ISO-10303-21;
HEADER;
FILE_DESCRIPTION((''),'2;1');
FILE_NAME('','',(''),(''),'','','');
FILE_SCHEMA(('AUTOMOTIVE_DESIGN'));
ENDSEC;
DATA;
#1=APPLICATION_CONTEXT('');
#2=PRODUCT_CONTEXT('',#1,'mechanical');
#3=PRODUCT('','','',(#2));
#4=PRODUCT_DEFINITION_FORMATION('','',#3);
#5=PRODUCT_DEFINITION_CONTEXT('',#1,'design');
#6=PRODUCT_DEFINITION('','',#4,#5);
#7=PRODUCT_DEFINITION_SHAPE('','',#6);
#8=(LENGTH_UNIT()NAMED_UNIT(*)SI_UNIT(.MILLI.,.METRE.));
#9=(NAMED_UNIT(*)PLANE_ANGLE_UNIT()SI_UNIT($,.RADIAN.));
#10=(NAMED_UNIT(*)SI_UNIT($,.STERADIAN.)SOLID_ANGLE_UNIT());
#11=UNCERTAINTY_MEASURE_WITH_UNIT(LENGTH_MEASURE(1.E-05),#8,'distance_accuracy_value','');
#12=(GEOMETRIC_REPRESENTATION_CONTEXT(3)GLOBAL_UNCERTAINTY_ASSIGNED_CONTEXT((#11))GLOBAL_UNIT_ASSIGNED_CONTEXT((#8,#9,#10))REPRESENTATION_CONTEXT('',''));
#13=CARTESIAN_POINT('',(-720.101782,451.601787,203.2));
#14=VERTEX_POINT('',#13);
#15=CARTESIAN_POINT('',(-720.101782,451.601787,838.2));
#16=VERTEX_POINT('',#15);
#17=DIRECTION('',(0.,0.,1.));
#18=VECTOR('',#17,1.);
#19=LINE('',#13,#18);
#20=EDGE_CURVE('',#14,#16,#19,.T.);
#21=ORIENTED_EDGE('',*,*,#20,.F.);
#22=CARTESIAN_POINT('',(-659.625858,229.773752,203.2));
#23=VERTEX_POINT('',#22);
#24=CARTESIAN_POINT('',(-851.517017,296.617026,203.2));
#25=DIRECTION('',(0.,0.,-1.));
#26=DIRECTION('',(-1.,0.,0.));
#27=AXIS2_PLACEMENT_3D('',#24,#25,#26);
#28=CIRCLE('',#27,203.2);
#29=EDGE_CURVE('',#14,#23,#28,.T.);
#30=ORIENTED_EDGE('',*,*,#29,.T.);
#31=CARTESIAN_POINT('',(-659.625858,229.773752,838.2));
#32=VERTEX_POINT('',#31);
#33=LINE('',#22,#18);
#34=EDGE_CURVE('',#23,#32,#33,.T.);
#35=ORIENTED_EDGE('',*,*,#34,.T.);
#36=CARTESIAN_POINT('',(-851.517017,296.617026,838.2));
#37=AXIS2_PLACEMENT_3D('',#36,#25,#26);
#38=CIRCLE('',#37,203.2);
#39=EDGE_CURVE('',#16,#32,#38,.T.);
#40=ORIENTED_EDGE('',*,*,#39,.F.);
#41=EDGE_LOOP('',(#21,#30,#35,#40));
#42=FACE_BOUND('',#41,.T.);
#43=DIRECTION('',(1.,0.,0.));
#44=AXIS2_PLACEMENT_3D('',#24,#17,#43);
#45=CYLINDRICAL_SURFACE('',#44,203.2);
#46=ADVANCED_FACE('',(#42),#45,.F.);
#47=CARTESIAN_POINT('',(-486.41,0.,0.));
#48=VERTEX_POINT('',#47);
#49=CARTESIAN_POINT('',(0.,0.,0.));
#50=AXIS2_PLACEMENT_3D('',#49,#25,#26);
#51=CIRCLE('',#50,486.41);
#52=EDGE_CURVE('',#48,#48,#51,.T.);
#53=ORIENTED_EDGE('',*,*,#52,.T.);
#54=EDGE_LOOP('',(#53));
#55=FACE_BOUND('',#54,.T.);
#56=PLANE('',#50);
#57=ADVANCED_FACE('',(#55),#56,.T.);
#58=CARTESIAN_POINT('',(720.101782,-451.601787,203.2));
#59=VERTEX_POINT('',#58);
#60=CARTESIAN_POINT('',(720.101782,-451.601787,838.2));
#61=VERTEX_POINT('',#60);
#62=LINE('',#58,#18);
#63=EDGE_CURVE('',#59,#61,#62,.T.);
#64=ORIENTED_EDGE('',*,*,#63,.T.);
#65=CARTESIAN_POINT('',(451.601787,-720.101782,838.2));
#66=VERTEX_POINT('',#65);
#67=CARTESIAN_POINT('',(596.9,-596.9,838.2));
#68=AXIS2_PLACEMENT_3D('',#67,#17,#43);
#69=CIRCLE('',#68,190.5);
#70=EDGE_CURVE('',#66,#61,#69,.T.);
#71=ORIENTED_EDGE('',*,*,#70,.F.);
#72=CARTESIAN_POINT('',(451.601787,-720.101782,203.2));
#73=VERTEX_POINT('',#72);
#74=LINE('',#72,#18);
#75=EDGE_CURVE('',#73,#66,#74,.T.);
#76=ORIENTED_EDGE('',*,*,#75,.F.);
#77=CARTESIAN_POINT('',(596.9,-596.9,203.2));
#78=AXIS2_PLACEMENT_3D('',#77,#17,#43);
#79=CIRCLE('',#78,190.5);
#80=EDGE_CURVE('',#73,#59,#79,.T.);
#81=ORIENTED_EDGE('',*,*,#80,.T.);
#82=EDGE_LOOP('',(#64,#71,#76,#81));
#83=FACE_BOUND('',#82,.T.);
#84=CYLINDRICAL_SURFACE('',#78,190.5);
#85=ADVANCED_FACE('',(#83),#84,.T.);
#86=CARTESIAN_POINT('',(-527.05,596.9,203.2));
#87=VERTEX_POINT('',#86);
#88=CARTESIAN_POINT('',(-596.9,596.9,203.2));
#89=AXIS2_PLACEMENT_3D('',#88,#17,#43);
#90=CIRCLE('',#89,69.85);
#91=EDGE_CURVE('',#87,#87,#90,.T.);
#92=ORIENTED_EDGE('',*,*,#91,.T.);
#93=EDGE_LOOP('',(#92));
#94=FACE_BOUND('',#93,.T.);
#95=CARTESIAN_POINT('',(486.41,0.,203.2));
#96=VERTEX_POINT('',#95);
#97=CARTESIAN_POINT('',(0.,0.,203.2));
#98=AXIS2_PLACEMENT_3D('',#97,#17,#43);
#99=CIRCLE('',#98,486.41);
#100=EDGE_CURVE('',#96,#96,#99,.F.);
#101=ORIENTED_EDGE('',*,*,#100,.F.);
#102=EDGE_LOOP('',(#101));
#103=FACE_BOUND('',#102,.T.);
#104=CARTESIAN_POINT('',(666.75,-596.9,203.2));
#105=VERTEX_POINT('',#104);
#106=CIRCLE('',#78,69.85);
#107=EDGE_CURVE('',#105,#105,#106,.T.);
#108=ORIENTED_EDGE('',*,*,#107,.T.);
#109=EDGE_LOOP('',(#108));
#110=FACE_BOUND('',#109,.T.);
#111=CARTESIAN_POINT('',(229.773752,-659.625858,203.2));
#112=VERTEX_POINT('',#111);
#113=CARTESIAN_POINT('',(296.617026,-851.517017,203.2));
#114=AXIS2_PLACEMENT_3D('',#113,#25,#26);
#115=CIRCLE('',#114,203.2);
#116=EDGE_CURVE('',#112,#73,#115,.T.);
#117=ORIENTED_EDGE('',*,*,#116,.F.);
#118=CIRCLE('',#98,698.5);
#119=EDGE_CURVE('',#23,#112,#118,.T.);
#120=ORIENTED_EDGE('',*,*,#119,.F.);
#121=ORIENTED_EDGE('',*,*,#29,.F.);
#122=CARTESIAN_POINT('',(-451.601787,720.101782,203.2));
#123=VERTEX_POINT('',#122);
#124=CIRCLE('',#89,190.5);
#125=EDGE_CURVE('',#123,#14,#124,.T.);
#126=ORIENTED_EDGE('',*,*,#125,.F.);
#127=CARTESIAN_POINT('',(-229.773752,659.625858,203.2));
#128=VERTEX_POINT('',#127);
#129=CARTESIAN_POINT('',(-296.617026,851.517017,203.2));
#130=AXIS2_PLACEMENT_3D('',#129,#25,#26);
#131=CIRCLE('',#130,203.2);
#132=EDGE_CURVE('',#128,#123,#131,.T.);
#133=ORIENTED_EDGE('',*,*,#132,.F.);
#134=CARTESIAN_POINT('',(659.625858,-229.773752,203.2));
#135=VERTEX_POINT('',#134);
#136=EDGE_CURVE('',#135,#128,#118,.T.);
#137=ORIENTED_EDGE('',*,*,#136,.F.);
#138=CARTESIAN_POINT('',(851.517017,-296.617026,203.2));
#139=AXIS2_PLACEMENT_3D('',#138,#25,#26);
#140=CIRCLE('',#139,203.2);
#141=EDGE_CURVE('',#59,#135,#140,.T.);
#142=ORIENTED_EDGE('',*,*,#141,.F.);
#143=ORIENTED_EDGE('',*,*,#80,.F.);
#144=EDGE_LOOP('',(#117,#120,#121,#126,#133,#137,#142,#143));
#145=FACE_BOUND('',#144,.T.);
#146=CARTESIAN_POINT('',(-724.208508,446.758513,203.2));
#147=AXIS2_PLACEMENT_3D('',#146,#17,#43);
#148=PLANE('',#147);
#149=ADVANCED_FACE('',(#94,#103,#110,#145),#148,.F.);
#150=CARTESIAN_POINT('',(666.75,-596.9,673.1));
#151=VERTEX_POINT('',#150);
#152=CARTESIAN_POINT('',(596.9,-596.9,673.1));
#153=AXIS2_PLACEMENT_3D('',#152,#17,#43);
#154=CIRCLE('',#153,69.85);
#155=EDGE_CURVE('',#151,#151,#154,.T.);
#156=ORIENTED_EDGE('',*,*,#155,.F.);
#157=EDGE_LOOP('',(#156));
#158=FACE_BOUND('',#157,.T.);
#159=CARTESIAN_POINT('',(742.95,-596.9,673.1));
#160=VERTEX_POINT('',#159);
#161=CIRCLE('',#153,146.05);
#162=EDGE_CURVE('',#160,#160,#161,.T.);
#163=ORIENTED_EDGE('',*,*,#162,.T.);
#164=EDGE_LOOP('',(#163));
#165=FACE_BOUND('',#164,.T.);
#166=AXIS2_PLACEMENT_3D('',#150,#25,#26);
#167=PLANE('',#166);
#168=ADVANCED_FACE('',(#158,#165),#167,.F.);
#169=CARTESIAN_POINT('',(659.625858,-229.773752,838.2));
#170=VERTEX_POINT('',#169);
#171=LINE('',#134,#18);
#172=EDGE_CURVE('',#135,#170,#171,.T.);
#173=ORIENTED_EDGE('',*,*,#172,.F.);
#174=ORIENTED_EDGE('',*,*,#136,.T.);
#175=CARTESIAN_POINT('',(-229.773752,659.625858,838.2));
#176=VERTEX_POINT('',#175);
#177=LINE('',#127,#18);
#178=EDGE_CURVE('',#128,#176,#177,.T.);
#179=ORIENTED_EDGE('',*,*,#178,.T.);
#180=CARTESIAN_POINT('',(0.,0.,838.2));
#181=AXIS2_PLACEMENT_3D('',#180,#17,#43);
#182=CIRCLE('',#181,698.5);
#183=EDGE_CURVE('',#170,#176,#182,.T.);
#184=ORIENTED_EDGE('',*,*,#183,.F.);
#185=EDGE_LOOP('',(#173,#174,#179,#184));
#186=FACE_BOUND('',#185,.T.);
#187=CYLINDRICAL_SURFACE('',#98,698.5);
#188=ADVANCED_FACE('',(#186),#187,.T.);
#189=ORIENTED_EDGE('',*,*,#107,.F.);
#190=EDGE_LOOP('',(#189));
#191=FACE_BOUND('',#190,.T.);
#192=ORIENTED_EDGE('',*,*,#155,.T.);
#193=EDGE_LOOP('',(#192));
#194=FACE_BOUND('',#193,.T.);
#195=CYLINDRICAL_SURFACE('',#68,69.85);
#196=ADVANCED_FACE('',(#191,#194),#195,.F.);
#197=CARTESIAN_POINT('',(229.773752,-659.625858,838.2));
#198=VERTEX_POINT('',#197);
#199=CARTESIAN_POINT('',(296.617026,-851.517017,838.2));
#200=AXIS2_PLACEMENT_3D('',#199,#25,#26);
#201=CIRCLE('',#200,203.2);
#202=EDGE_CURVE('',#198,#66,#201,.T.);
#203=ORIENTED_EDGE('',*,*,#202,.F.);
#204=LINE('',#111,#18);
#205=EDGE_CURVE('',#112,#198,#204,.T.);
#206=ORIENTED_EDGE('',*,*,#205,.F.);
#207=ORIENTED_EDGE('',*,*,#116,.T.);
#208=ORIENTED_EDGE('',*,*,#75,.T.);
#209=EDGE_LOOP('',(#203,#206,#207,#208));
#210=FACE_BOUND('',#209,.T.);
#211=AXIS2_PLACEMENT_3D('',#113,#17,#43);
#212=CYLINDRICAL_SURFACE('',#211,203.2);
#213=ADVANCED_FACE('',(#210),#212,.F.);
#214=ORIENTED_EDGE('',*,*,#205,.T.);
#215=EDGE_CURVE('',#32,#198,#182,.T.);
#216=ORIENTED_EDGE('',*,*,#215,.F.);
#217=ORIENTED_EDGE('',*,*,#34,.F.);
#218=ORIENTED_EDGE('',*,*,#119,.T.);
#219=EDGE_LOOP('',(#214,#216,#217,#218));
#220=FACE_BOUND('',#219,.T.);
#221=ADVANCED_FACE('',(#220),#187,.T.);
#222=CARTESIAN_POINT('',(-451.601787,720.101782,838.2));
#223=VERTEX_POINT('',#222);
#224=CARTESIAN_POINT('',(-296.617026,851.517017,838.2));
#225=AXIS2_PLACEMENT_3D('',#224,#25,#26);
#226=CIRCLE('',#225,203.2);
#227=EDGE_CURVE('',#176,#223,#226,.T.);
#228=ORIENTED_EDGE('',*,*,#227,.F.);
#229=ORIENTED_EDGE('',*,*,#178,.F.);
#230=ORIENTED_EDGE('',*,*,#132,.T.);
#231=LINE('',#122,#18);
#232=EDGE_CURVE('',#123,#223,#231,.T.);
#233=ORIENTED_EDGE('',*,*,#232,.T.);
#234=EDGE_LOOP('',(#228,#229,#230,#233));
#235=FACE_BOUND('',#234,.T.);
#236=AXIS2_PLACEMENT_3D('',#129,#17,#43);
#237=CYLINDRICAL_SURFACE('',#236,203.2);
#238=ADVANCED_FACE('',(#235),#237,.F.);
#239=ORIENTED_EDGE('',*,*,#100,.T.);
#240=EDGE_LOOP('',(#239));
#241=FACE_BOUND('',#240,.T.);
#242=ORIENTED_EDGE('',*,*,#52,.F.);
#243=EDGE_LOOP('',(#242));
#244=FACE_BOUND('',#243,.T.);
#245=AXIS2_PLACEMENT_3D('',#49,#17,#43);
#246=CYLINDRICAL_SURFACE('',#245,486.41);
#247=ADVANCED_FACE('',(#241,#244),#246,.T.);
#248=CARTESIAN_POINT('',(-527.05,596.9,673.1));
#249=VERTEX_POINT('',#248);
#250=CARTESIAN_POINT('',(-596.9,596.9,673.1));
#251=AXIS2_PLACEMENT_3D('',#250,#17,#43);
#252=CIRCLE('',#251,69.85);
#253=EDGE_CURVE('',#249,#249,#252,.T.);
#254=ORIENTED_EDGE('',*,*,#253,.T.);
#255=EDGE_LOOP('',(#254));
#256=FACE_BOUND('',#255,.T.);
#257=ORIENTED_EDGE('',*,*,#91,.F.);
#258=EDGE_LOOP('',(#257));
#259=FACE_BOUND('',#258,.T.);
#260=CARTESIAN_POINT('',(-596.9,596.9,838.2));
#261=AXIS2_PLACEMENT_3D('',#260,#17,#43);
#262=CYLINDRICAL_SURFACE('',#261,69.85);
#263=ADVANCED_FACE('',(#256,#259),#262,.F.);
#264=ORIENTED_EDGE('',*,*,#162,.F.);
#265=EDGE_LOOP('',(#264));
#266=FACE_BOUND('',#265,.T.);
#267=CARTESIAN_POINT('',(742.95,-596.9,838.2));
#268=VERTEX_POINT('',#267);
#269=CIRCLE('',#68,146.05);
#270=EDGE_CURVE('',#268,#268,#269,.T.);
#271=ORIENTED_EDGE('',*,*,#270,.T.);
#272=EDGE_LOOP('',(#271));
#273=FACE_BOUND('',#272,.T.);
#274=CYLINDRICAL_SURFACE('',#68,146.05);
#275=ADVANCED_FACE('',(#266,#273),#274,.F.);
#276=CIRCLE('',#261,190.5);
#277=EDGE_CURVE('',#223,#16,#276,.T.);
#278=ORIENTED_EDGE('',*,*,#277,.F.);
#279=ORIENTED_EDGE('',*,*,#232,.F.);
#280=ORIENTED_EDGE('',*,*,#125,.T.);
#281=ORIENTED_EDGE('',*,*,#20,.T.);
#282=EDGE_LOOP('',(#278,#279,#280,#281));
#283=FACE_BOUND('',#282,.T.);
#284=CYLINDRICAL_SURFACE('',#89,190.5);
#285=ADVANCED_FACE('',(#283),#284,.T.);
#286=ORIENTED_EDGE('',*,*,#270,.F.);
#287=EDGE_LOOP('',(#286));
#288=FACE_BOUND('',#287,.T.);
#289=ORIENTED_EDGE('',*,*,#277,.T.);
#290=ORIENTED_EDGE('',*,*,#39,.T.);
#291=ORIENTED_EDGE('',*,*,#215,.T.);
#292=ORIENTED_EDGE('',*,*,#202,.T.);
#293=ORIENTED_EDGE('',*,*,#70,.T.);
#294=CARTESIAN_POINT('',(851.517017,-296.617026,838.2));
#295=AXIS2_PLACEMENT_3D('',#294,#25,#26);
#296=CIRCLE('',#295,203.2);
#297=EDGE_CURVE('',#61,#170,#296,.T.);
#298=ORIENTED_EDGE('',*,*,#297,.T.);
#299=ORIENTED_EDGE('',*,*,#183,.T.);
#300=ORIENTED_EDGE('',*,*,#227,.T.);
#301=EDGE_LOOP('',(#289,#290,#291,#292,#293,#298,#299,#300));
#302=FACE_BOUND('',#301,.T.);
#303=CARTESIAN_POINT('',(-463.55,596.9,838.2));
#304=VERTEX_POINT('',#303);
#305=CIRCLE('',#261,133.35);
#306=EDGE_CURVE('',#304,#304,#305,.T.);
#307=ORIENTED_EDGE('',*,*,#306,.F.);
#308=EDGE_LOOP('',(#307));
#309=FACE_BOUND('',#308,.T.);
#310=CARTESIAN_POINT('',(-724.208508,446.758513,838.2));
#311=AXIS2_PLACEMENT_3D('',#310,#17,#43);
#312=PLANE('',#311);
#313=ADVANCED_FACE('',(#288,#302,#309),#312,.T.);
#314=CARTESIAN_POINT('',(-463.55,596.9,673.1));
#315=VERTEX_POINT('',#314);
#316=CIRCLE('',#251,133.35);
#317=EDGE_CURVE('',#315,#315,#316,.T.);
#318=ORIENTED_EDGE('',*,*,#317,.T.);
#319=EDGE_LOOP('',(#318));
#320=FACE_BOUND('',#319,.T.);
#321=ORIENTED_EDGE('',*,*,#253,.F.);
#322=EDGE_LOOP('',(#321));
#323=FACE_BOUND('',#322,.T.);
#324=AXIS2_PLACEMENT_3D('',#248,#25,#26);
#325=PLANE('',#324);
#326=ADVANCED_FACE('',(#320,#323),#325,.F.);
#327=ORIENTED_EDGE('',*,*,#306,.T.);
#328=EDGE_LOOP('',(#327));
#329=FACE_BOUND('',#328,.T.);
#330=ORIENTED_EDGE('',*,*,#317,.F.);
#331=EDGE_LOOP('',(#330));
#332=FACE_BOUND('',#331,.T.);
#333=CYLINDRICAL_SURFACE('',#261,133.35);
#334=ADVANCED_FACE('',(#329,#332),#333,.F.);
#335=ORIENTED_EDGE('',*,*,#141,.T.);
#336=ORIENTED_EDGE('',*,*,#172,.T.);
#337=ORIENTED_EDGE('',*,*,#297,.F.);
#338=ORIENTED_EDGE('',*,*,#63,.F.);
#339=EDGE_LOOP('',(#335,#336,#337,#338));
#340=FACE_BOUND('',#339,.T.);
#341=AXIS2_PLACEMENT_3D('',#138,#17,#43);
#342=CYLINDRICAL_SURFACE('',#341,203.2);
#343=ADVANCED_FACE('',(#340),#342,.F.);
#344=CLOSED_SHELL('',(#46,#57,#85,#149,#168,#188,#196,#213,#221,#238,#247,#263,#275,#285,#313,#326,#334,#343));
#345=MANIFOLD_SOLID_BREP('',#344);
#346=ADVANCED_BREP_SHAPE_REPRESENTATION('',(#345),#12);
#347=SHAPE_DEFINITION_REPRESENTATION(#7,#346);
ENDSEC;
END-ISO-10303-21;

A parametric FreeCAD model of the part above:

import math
import FreeCAD as App
import Part
import Sketcher
from FreeCAD import Vector
Q = App.Units.Quantity

doc = App.newDocument("Part")
params = doc.addObject("Spreadsheet::Sheet", "Params")
for row, (alias, value) in enumerate([
    ("sketch1_radius", "8 in"),
    ("sketch1_radius2", "27.5 in"),
    ("sketch1_radius3", "7.5 in"),
    ("pad1_length", "25 in"),
    ("sketch2_diameter", "38.3 in"),
    ("pad2_length", "8 in"),
    ("sketch3_diameter", "5.5 in"),
    ("hole_diameter", "5.5 in"),
    ("hole_depth", "33 in"),
    ("hole_cbore_diameter", "10.5 in"),
    ("hole_cbore_depth", "6.5 in"),
    ("sketch4_diameter", "5.5 in"),
    ("hole2_diameter", "5.5 in"),
    ("hole2_depth", "33 in"),
    ("hole2_cbore_diameter", "11.5 in"),
    ("hole2_cbore_depth", "6.5 in"),
], start=1):
    params.set(f"A{row}", alias)
    params.set(f"B{row}", "=" + value)
    params.setAlias(f"B{row}", alias)

body = doc.addObject("PartDesign::Body", "Body")

sketch1 = body.newObject("Sketcher::SketchObject", "Sketch")
sketch1.AttachmentSupport = (doc.getObject("XY_Plane"), [""])
sketch1.MapMode = "FlatFace"
sketch1.AttachmentOffset = App.Placement(Vector(0, 0, 33 * 25.4), App.Rotation())
sketch1.addGeometry(Part.ArcOfCircle(Part.Circle(Vector(-852, 297, 0), Vector(0, 0, 1), 203), math.radians(-19), math.radians(50)), False)
sketch1.addGeometry(Part.ArcOfCircle(Part.Circle(Vector(0, 0, 0), Vector(0, 0, 1), 699), math.radians(161), math.radians(289)), False)
sketch1.addGeometry(Part.ArcOfCircle(Part.Circle(Vector(297, -852, 0), Vector(0, 0, 1), 203), math.radians(40), math.radians(109)), False)
sketch1.addGeometry(Part.ArcOfCircle(Part.Circle(Vector(597, -597, 0), Vector(0, 0, 1), 190), math.radians(-140), math.radians(50)), False)
sketch1.addGeometry(Part.ArcOfCircle(Part.Circle(Vector(852, -297, 0), Vector(0, 0, 1), 203), math.radians(161), math.radians(230)), False)
sketch1.addGeometry(Part.ArcOfCircle(Part.Circle(Vector(0, 0, 0), Vector(0, 0, 1), 699), math.radians(-19), math.radians(109)), False)
sketch1.addGeometry(Part.ArcOfCircle(Part.Circle(Vector(-297, 852, 0), Vector(0, 0, 1), 203), math.radians(-140), math.radians(-71)), False)
sketch1.addGeometry(Part.ArcOfCircle(Part.Circle(Vector(-597, 597, 0), Vector(0, 0, 1), 190), math.radians(40), math.radians(230)), False)
sketch1.addConstraint(Sketcher.Constraint("Tangent", 0, 1, 1, 1))
sketch1.addConstraint(Sketcher.Constraint("Tangent", 1, 2, 2, 2))
sketch1.addConstraint(Sketcher.Constraint("Tangent", 2, 1, 3, 1))
sketch1.addConstraint(Sketcher.Constraint("Tangent", 3, 2, 4, 2))
sketch1.addConstraint(Sketcher.Constraint("Tangent", 4, 1, 5, 1))
sketch1.addConstraint(Sketcher.Constraint("Tangent", 5, 2, 6, 2))
sketch1.addConstraint(Sketcher.Constraint("Tangent", 6, 1, 7, 1))
sketch1.addConstraint(Sketcher.Constraint("Tangent", 7, 2, 0, 2))
sketch1.addConstraint(Sketcher.Constraint("Coincident", 1, 3, -1, 1))
sketch1.addConstraint(Sketcher.Constraint("Coincident", 5, 3, -1, 1))
sketch1.addConstraint(Sketcher.Constraint("Equal", 0, 2))
sketch1.addConstraint(Sketcher.Constraint("Equal", 2, 4))
sketch1.addConstraint(Sketcher.Constraint("Equal", 1, 5))
sketch1.addConstraint(Sketcher.Constraint("Equal", 4, 6))
sketch1.addConstraint(Sketcher.Constraint("Equal", 3, 7))
sketch1.addConstraint(Sketcher.Constraint("Symmetric", 3, 3, 7, 3, -1, 1))
sketch1.addConstraint(Sketcher.Constraint("Radius", 0, Q("8 in")))
sketch1.addConstraint(Sketcher.Constraint("Radius", 1, Q("27.5 in")))
sketch1.addConstraint(Sketcher.Constraint("Radius", 3, Q("7.5 in")))
sketch1.addConstraint(Sketcher.Constraint("DistanceX", 7, 3, 3, 3, Q("47 in")))
sketch1.addConstraint(Sketcher.Constraint("DistanceY", 3, 3, 7, 3, Q("47 in")))
sketch1.setExpression("Constraints[16]", "Params.sketch1_radius")
sketch1.setExpression("Constraints[17]", "Params.sketch1_radius2")
sketch1.setExpression("Constraints[18]", "Params.sketch1_radius3")
pad1 = body.newObject("PartDesign::Pad", "Pad")
pad1.Profile = sketch1
pad1.setExpression("Length", "Params.pad1_length")
pad1.Reversed = True

sketch2 = body.newObject("Sketcher::SketchObject", "Sketch001")
sketch2.AttachmentSupport = (doc.getObject("XY_Plane"), [""])
sketch2.MapMode = "FlatFace"
sketch2.AttachmentOffset = App.Placement(Vector(0, 0, 8 * 25.4), App.Rotation())
sketch2.addGeometry(Part.Circle(Vector(0, 0, 0), Vector(0, 0, 1), 486), False)
sketch2.addConstraint(Sketcher.Constraint("Coincident", 0, 3, -1, 1))
sketch2.addConstraint(Sketcher.Constraint("Diameter", 0, Q("38.3 in")))
sketch2.setExpression("Constraints[1]", "Params.sketch2_diameter")
pad2 = body.newObject("PartDesign::Pad", "Pad001")
pad2.Profile = sketch2
pad2.setExpression("Length", "Params.pad2_length")
pad2.Reversed = True

sketch3 = body.newObject("Sketcher::SketchObject", "Sketch002")
sketch3.AttachmentSupport = (doc.getObject("XY_Plane"), [""])
sketch3.MapMode = "FlatFace"
sketch3.AttachmentOffset = App.Placement(Vector(0, 0, 33 * 25.4), App.Rotation())
sketch3.addGeometry(Part.Circle(Vector(-597, 597, 0), Vector(0, 0, 1), 70), False)
sketch3.addConstraint(Sketcher.Constraint("Diameter", 0, Q("5.5 in")))
sketch3.addConstraint(Sketcher.Constraint("DistanceX", 0, 3, -1, 1, Q("23.5 in")))
sketch3.addConstraint(Sketcher.Constraint("DistanceY", -1, 1, 0, 3, Q("23.5 in")))
sketch3.setExpression("Constraints[0]", "Params.sketch3_diameter")
doc.recompute()
hole = body.newObject("PartDesign::Hole", "Hole")
hole.Profile = sketch3
hole.ThreadType = "None"
hole.setExpression("Diameter", "Params.hole_diameter")
hole.DepthType = "Dimension"
hole.setExpression("Depth", "Params.hole_depth")
hole.DrillPoint = "Flat"
hole.HoleCutType = "Counterbore"
hole.setExpression("HoleCutDiameter", "Params.hole_cbore_diameter")
hole.setExpression("HoleCutDepth", "Params.hole_cbore_depth")

sketch4 = body.newObject("Sketcher::SketchObject", "Sketch003")
sketch4.AttachmentSupport = (doc.getObject("XY_Plane"), [""])
sketch4.MapMode = "FlatFace"
sketch4.AttachmentOffset = App.Placement(Vector(0, 0, 33 * 25.4), App.Rotation())
sketch4.addGeometry(Part.Circle(Vector(597, -597, 0), Vector(0, 0, 1), 70), False)
sketch4.addConstraint(Sketcher.Constraint("Diameter", 0, Q("5.5 in")))
sketch4.addConstraint(Sketcher.Constraint("DistanceX", -1, 1, 0, 3, Q("23.5 in")))
sketch4.addConstraint(Sketcher.Constraint("DistanceY", 0, 3, -1, 1, Q("23.5 in")))
sketch4.setExpression("Constraints[0]", "Params.sketch4_diameter")
doc.recompute()
hole2 = body.newObject("PartDesign::Hole", "Hole001")
hole2.Profile = sketch4
hole2.ThreadType = "None"
hole2.setExpression("Diameter", "Params.hole2_diameter")
hole2.DepthType = "Dimension"
hole2.setExpression("Depth", "Params.hole2_depth")
hole2.DrillPoint = "Flat"
hole2.HoleCutType = "Counterbore"
hole2.setExpression("HoleCutDiameter", "Params.hole2_cbore_diameter")
hole2.setExpression("HoleCutDepth", "Params.hole2_cbore_depth")

doc.recompute()
